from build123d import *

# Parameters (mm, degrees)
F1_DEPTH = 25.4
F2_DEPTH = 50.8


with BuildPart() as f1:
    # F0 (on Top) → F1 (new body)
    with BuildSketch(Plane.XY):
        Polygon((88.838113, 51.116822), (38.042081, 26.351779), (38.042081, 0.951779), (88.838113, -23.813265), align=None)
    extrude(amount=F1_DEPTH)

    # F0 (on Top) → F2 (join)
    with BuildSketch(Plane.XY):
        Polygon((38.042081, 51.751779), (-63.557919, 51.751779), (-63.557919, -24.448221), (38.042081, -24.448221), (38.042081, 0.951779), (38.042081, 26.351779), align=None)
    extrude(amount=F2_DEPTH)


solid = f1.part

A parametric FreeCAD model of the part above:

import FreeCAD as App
import Part
import Sketcher
Q = App.Units.Quantity


def add_polygon(sketch, points):
    """Adds a closed chain of lines whose ends are joined by coincident constraints."""
    first, n = sketch.GeometryCount, len(points)
    for a, b in zip(points, points[1:] + points[:1]):
        sketch.addGeometry(Part.LineSegment(App.Vector(*a, 0), App.Vector(*b, 0)), False)
    for i in range(n):
        sketch.addConstraint(Sketcher.Constraint("Coincident", first + i, 2, first + (i + 1) % n, 1))

doc = App.newDocument("Part")
body = doc.addObject("PartDesign::Body", "Body")

sketch1 = doc.addObject("Sketcher::SketchObject", "Sketch")
body.addObject(sketch1)
sketch1.AttachmentSupport = (doc.XY_Plane, [""])
sketch1.MapMode = "FlatFace"
add_polygon(sketch1, [(89, 51), (38, 26), (38, 1), (89, -24)])
sketch1.addConstraint([
    Sketcher.Constraint("Vertical", 1),
    Sketcher.Constraint("Vertical", 3),
    Sketcher.Constraint("Equal", 0, 2),
    Sketcher.Constraint("DistanceY", 1, 2, 1, 1, Q("1 in")),
    Sketcher.Constraint("DistanceY", 3, 1, 3, 2, Q("74.930087 mm")),
    Sketcher.Constraint("DistanceX", -1, 1, 0, 2, Q("38.042081 mm")),
    Sketcher.Constraint("DistanceY", -1, 1, 0, 2, Q("26.351779 mm")),
    Sketcher.Constraint("Distance", 0, Q("56.511452 mm")),
])
pad1 = doc.addObject("PartDesign::Pad", "Pad")
body.addObject(pad1)
pad1.Profile = sketch1
pad1.Length = Q("1 in")

sketch2 = doc.addObject("Sketcher::SketchObject", "Sketch001")
body.addObject(sketch2)
sketch2.AttachmentSupport = (doc.XY_Plane, [""])
sketch2.MapMode = "FlatFace"
add_polygon(sketch2, [(38, 52), (-64, 52), (-64, -24), (38, -24)])
sketch2.addConstraint([
    Sketcher.Constraint("Horizontal", 0),
    Sketcher.Constraint("Vertical", 1),
    Sketcher.Constraint("Horizontal", 2),
    Sketcher.Constraint("Vertical", 3),
    Sketcher.Constraint("DistanceX", 0, 2, 0, 1, Q("4 in")),
    Sketcher.Constraint("DistanceY", 1, 2, 1, 1, Q("3 in")),
    Sketcher.Constraint("DistanceX", 0, 2, -1, 1, Q("63.557919 mm")),
    Sketcher.Constraint("DistanceY", -1, 1, 0, 2, Q("51.751779 mm")),
])
pad2 = doc.addObject("PartDesign::Pad", "Pad001")
body.addObject(pad2)
pad2.Profile = sketch2
pad2.Length = Q("2 in")

doc.recompute()
